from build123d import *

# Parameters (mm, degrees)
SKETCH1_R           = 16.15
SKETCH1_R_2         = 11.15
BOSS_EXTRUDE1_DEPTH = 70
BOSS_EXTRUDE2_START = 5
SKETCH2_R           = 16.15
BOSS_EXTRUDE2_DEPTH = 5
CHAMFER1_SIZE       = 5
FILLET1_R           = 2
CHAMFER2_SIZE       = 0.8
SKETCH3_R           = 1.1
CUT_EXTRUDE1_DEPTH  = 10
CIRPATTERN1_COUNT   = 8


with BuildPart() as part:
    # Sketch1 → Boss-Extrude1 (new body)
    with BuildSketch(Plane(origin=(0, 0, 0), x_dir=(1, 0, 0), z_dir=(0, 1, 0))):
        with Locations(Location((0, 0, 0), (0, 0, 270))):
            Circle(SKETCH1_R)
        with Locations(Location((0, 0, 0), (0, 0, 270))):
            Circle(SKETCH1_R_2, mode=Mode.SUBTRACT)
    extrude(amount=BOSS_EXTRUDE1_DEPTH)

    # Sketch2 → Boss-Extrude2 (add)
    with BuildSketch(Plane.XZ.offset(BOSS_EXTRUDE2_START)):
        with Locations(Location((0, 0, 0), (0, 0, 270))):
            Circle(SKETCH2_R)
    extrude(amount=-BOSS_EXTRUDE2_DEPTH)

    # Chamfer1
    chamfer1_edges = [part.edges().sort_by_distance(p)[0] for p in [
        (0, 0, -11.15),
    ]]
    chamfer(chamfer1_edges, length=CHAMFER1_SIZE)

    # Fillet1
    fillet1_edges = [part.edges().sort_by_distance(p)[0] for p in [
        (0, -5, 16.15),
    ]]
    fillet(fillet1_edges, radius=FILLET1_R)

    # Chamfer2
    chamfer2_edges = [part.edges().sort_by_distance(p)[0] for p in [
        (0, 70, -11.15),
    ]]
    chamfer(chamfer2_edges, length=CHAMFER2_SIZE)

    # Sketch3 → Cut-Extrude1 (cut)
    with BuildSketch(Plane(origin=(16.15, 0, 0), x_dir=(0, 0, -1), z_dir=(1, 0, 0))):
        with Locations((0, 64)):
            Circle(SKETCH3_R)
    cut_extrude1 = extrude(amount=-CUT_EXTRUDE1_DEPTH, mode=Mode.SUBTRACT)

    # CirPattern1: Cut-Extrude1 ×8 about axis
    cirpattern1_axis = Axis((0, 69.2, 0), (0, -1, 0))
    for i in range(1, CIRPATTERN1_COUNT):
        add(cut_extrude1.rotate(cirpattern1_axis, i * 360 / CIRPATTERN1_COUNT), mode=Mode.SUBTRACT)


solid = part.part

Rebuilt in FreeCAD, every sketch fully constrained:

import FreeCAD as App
import Part
import Sketcher

V = App.Vector
Q = App.Units.Quantity


def edges_at(feature, points):
    """Names of the edges that pass closest to the given points."""
    edges = feature.Shape.Edges
    near = lambda p: min(range(len(edges)), key=lambda i: edges[i].distToShape(Part.Vertex(*p))[0])
    return sorted({f"Edge{near(p) + 1}" for p in points})

doc = App.newDocument("Part")
body = doc.addObject("PartDesign::Body", "Body")

# Sketch on XZ plane
sketch1 = body.newObject("Sketcher::SketchObject", "Sketch")
sketch1.AttachmentSupport = (doc.getObject("XZ_Plane"), [""])
sketch1.MapMode = "FlatFace"
sketch1.addGeometry(Part.Circle(V(0, 0, 0), V(0, 0, 1), 16), False)
sketch1.addGeometry(Part.Circle(V(0, 0, 0), V(0, 0, 1), 11), False)
sketch1.addConstraint(Sketcher.Constraint("Coincident", 0, 3, -1, 1))
sketch1.addConstraint(Sketcher.Constraint("Coincident", 1, 3, -1, 1))
sketch1.addConstraint(Sketcher.Constraint("Diameter", 0, Q("32.3 mm")))
sketch1.addConstraint(Sketcher.Constraint("Diameter", 1, Q("22.3 mm")))
pad1 = body.newObject("PartDesign::Pad", "Pad")
pad1.Profile = sketch1
pad1.Length = 70
pad1.Reversed = True

# Sketch on XZ plane
sketch2 = body.newObject("Sketcher::SketchObject", "Sketch001")
sketch2.AttachmentSupport = (doc.getObject("XZ_Plane"), [""])
sketch2.MapMode = "FlatFace"
sketch2.AttachmentOffset = App.Placement(V(0, 0, 5), App.Rotation())
sketch2.addGeometry(Part.Circle(V(0, 0, 0), V(0, 0, 1), 16), False)
sketch2.addConstraint(Sketcher.Constraint("Coincident", 0, 3, -1, 1))
sketch2.addConstraint(Sketcher.Constraint("Diameter", 0, Q("32.3 mm")))
pad2 = body.newObject("PartDesign::Pad", "Pad001")
pad2.Profile = sketch2
pad2.Length = 5
pad2.Reversed = True
doc.recompute()

chamfer = body.newObject("PartDesign::Chamfer", "Chamfer")
chamfer.Base = (pad2, edges_at(pad2, [(0, 0, -11.15)]))
chamfer.Size = 5
doc.recompute()

fillet = body.newObject("PartDesign::Fillet", "Fillet")
fillet.Base = (chamfer, edges_at(chamfer, [(0, -5, 16.15)]))
fillet.Radius = 2
doc.recompute()

chamfer2 = body.newObject("PartDesign::Chamfer", "Chamfer001")
chamfer2.Base = (fillet, edges_at(fillet, [(0, 70, -11.15)]))
chamfer2.Size = 0.8

# Sketch on YZ plane
sketch3 = body.newObject("Sketcher::SketchObject", "Sketch002")
sketch3.AttachmentSupport = (doc.getObject("YZ_Plane"), [""])
sketch3.MapMode = "FlatFace"
sketch3.AttachmentOffset = App.Placement(V(0, 0, 16.15), App.Rotation())
sketch3.addGeometry(Part.Circle(V(64, 0, 0), V(0, 0, 1), 1.1), False)
sketch3.addConstraint(Sketcher.Constraint("PointOnObject", 0, 3, -1))
sketch3.addConstraint(Sketcher.Constraint("Diameter", 0, Q("2.2 mm")))
sketch3.addConstraint(Sketcher.Constraint("DistanceX", -1, 1, 0, 3, Q("64 mm")))
pocket1 = body.newObject("PartDesign::Pocket", "Pocket")
pocket1.Profile = sketch3
pocket1.Length = 10
doc.recompute()

polarpattern = body.newObject("PartDesign::PolarPattern", "PolarPattern")
polarpattern.Originals = [pocket1]
polarpattern.Axis = (doc.getObject("Y_Axis"), [""])
polarpattern.Angle = 360
polarpattern.Occurrences = 8
body.Tip = polarpattern

doc.recompute()
